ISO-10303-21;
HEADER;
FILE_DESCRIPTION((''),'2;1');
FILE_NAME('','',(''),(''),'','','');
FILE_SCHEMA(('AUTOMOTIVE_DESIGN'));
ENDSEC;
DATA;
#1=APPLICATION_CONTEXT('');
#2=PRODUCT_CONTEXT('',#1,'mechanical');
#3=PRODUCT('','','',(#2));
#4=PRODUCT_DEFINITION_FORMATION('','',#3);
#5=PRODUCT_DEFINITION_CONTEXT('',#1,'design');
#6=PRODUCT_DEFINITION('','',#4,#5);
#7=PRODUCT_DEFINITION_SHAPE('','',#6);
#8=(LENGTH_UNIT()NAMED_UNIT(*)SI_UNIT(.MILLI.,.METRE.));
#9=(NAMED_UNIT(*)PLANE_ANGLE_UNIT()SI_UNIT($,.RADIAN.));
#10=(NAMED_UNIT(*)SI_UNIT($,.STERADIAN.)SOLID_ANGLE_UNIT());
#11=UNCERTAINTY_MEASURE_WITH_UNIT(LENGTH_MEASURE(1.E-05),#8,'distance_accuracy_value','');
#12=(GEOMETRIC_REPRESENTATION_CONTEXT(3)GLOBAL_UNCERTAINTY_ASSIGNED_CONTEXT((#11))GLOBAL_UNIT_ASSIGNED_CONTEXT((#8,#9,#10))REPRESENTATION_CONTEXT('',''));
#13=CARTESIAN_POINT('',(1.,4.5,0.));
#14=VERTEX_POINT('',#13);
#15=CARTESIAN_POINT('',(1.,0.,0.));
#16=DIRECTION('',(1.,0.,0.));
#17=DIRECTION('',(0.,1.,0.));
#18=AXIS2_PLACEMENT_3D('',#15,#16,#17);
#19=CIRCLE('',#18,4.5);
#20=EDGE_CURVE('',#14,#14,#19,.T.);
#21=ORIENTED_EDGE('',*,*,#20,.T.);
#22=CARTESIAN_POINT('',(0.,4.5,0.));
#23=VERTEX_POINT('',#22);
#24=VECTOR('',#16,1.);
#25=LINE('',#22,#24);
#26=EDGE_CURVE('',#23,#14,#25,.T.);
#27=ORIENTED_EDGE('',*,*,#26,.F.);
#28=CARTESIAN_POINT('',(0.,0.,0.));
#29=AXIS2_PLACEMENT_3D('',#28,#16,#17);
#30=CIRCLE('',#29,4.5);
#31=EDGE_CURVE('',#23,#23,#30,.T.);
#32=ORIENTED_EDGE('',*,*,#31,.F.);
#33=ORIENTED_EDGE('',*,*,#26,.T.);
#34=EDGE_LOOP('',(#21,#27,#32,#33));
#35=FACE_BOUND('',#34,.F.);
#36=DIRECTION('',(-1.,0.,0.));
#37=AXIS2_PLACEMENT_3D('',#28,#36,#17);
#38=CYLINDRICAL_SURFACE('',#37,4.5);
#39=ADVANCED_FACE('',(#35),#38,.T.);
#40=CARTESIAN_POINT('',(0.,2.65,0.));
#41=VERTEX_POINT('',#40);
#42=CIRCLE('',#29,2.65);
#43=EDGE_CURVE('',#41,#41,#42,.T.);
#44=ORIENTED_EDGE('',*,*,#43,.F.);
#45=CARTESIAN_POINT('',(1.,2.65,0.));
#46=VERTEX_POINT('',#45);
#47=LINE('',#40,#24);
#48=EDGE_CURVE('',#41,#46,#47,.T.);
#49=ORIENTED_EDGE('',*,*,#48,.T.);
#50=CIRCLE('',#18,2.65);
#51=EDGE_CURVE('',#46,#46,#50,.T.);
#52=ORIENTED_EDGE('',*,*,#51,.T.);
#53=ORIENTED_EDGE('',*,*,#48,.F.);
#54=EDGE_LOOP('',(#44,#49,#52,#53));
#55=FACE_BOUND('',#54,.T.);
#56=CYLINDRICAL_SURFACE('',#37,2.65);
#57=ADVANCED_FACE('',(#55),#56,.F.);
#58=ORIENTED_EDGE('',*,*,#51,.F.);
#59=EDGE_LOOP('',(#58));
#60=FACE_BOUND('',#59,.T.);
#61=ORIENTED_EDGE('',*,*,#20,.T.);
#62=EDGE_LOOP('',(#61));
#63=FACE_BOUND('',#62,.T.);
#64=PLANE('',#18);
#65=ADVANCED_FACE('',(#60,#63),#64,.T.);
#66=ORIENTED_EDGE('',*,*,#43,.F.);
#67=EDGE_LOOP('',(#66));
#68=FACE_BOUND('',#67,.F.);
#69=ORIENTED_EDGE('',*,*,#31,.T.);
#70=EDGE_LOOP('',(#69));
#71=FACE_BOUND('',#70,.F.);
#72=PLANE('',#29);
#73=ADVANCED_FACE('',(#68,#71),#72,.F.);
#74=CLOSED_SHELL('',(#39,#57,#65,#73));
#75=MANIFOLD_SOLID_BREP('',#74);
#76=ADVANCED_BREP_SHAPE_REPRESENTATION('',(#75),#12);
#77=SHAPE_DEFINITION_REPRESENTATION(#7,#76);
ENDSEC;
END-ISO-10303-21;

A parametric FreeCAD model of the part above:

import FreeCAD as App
import Part
import Sketcher
from FreeCAD import Vector

doc = App.newDocument("Part")
body = doc.addObject("PartDesign::Body", "Body")

# Sketch on YZ plane
sketch1 = body.newObject("Sketcher::SketchObject", "Sketch")
sketch1.AttachmentSupport = (doc.getObject("YZ_Plane"), [""])
sketch1.MapMode = "FlatFace"
sketch1.addGeometry(Part.Circle(Vector(0, 0, 0), Vector(0, 0, 1), 4.5), False)
sketch1.addGeometry(Part.Circle(Vector(0, 0, 0), Vector(0, 0, 1), 2.6), False)
sketch1.addConstraint(Sketcher.Constraint("Coincident", 0, 3, -1, 1))
sketch1.addConstraint(Sketcher.Constraint("Coincident", 1, 3, -1, 1))
sketch1.addConstraint(Sketcher.Constraint("Diameter", 0, 9.0))
sketch1.addConstraint(Sketcher.Constraint("Diameter", 1, 5.3))
pad1 = body.newObject("PartDesign::Pad", "Pad")
pad1.Profile = sketch1
pad1.Length = 1

doc.recompute()
